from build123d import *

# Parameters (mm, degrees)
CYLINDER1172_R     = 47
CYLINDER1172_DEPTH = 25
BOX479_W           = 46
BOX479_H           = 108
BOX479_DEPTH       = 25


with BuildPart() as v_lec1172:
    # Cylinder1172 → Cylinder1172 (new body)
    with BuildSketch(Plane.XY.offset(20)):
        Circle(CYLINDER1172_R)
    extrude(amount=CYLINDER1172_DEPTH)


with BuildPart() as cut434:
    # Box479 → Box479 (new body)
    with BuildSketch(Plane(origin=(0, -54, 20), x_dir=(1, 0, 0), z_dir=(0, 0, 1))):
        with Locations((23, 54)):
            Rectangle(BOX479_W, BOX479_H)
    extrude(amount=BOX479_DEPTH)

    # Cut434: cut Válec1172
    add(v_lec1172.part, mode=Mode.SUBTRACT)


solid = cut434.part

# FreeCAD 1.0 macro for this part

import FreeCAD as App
import Part
import Sketcher
from FreeCAD import Vector

doc = App.newDocument("Part")
body = doc.addObject("PartDesign::Body", "Body")

sketch1 = body.newObject("Sketcher::SketchObject", "Sketch")
sketch1.AttachmentSupport = (doc.getObject("XY_Plane"), [""])
sketch1.MapMode = "FlatFace"
sketch1.AttachmentOffset = App.Placement(Vector(0, 0, 20), App.Rotation())
sketch1.addGeometry(Part.Circle(Vector(0, 0, 0), Vector(0, 0, 1), 47), False)
sketch1.addConstraint([
    Sketcher.Constraint("Coincident", 0, 3, -1, 1),
    Sketcher.Constraint("Diameter", 0, 94.0),
])
pad1 = body.newObject("PartDesign::Pad", "Pad")
pad1.Profile = sketch1
pad1.Length = 25
body2 = doc.addObject("PartDesign::Body", "Body001")
body2.AllowCompound = True

sketch2 = body2.newObject("Sketcher::SketchObject", "Sketch001")
sketch2.AttachmentSupport = (doc.getObject("XY_Plane001"), [""])
sketch2.MapMode = "FlatFace"
sketch2.AttachmentOffset = App.Placement(Vector(0, 0, 20), App.Rotation())
sketch2.addGeometry([
    Part.LineSegment(Vector(0, 54, 0), Vector(0, -54, 0)),
    Part.LineSegment(Vector(0, -54, 0), Vector(46, -54, 0)),
    Part.LineSegment(Vector(46, -54, 0), Vector(46, 54, 0)),
    Part.LineSegment(Vector(46, 54, 0), Vector(0, 54, 0)),
], False)
sketch2.addConstraint([
    Sketcher.Constraint("Coincident", 0, 2, 1, 1),
    Sketcher.Constraint("Coincident", 1, 2, 2, 1),
    Sketcher.Constraint("Coincident", 2, 2, 3, 1),
    Sketcher.Constraint("Coincident", 3, 2, 0, 1),
    Sketcher.Constraint("Vertical", 0),
    Sketcher.Constraint("Horizontal", 1),
    Sketcher.Constraint("Vertical", 2),
    Sketcher.Constraint("Horizontal", 3),
    Sketcher.Constraint("Symmetric", 0, 2, 3, 2, -1, 1),
    Sketcher.Constraint("DistanceX", 1, 1, 1, 2, 46.0),
    Sketcher.Constraint("DistanceY", 0, 2, 0, 1, 108.0),
])
pad2 = body2.newObject("PartDesign::Pad", "Pad001")
pad2.Profile = sketch2
pad2.Length = 25
doc.recompute()

boolean = body2.newObject("PartDesign::Boolean", "Boolean")
boolean.Type = "Cut"
boolean.addObjects([body])

doc.recompute()
